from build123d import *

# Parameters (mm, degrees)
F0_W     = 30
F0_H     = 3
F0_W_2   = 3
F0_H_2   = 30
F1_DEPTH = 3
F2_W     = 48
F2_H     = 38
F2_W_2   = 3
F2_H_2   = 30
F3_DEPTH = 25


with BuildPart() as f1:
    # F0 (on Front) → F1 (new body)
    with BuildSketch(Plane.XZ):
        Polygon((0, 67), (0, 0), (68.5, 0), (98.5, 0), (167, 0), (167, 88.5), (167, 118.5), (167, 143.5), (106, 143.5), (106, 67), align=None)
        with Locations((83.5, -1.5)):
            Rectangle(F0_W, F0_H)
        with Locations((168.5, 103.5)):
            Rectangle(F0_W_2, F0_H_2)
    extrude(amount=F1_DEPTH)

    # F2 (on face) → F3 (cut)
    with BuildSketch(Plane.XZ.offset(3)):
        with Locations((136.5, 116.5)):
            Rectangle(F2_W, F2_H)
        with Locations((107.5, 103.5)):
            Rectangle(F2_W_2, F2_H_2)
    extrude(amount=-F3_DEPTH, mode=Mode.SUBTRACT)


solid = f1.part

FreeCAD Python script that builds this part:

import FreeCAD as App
import Part
import Sketcher
from FreeCAD import Vector

doc = App.newDocument("Part")
body = doc.addObject("PartDesign::Body", "Body")

# Sketch on XZ plane
sketch1 = body.newObject("Sketcher::SketchObject", "Sketch")
sketch1.AttachmentSupport = (doc.getObject("XZ_Plane"), [""])
sketch1.MapMode = "FlatFace"
sketch1.addGeometry(Part.LineSegment(Vector(0, 67, 0), Vector(0, 0, 0)), False)
sketch1.addGeometry(Part.LineSegment(Vector(0, 0, 0), Vector(68.5, 0, 0)), False)
sketch1.addGeometry(Part.LineSegment(Vector(68.5, 0, 0), Vector(68.5, -3, 0)), False)
sketch1.addGeometry(Part.LineSegment(Vector(68.5, -3, 0), Vector(98.5, -3, 0)), False)
sketch1.addGeometry(Part.LineSegment(Vector(98.5, -3, 0), Vector(98.5, 0, 0)), False)
sketch1.addGeometry(Part.LineSegment(Vector(98.5, 0, 0), Vector(167, 0, 0)), False)
sketch1.addGeometry(Part.LineSegment(Vector(167, 0, 0), Vector(167, 88.5, 0)), False)
sketch1.addGeometry(Part.LineSegment(Vector(167, 88.5, 0), Vector(170, 88.5, 0)), False)
sketch1.addGeometry(Part.LineSegment(Vector(170, 88.5, 0), Vector(170, 118.5, 0)), False)
sketch1.addGeometry(Part.LineSegment(Vector(170, 118.5, 0), Vector(167, 118.5, 0)), False)
sketch1.addGeometry(Part.LineSegment(Vector(167, 118.5, 0), Vector(167, 143.5, 0)), False)
sketch1.addGeometry(Part.LineSegment(Vector(167, 143.5, 0), Vector(106, 143.5, 0)), False)
sketch1.addGeometry(Part.LineSegment(Vector(106, 143.5, 0), Vector(106, 67, 0)), False)
sketch1.addGeometry(Part.LineSegment(Vector(106, 67, 0), Vector(0, 67, 0)), False)
sketch1.addConstraint(Sketcher.Constraint("Coincident", 0, 2, 1, 1))
sketch1.addConstraint(Sketcher.Constraint("Coincident", 1, 2, 2, 1))
sketch1.addConstraint(Sketcher.Constraint("Coincident", 2, 2, 3, 1))
sketch1.addConstraint(Sketcher.Constraint("Coincident", 3, 2, 4, 1))
sketch1.addConstraint(Sketcher.Constraint("Coincident", 4, 2, 5, 1))
sketch1.addConstraint(Sketcher.Constraint("Coincident", 5, 2, 6, 1))
sketch1.addConstraint(Sketcher.Constraint("Coincident", 6, 2, 7, 1))
sketch1.addConstraint(Sketcher.Constraint("Coincident", 7, 2, 8, 1))
sketch1.addConstraint(Sketcher.Constraint("Coincident", 8, 2, 9, 1))
sketch1.addConstraint(Sketcher.Constraint("Coincident", 9, 2, 10, 1))
sketch1.addConstraint(Sketcher.Constraint("Coincident", 10, 2, 11, 1))
sketch1.addConstraint(Sketcher.Constraint("Coincident", 11, 2, 12, 1))
sketch1.addConstraint(Sketcher.Constraint("Coincident", 12, 2, 13, 1))
sketch1.addConstraint(Sketcher.Constraint("Coincident", 13, 2, 0, 1))
sketch1.addConstraint(Sketcher.Constraint("Vertical", 0))
sketch1.addConstraint(Sketcher.Constraint("Horizontal", 1))
sketch1.addConstraint(Sketcher.Constraint("Vertical", 2))
sketch1.addConstraint(Sketcher.Constraint("Horizontal", 3))
sketch1.addConstraint(Sketcher.Constraint("Vertical", 4))
sketch1.addConstraint(Sketcher.Constraint("Horizontal", 5))
sketch1.addConstraint(Sketcher.Constraint("Vertical", 6))
sketch1.addConstraint(Sketcher.Constraint("Horizontal", 7))
sketch1.addConstraint(Sketcher.Constraint("Vertical", 8))
sketch1.addConstraint(Sketcher.Constraint("Horizontal", 9))
sketch1.addConstraint(Sketcher.Constraint("Vertical", 10))
sketch1.addConstraint(Sketcher.Constraint("Horizontal", 11))
sketch1.addConstraint(Sketcher.Constraint("Vertical", 12))
sketch1.addConstraint(Sketcher.Constraint("Horizontal", 13))
sketch1.addConstraint(Sketcher.Constraint("Coincident", 0, 2, -1, 1))
sketch1.addConstraint(Sketcher.Constraint("PointOnObject", 4, 2, -1))
sketch1.addConstraint(Sketcher.Constraint("Vertical", 6, 2, 9, 2))
sketch1.addConstraint(Sketcher.Constraint("Equal", 1, 5))
sketch1.addConstraint(Sketcher.Constraint("Equal", 9, 2))
sketch1.addConstraint(Sketcher.Constraint("Equal", 3, 8))
sketch1.addConstraint(Sketcher.Constraint("DistanceX", 3, 1, 3, 2, 30.0))
sketch1.addConstraint(Sketcher.Constraint("DistanceX", 7, 1, 7, 2, 3.0))
sketch1.addConstraint(Sketcher.Constraint("DistanceX", 11, 2, 11, 1, 61.0))
sketch1.addConstraint(Sketcher.Constraint("DistanceX", 13, 2, 13, 1, 106.0))
sketch1.addConstraint(Sketcher.Constraint("DistanceY", 0, 2, 0, 1, 67.0))
sketch1.addConstraint(Sketcher.Constraint("DistanceY", 10, 1, 10, 2, 25.0))
sketch1.addConstraint(Sketcher.Constraint("DistanceY", 6, 1, 6, 2, 88.5))
pad1 = body.newObject("PartDesign::Pad", "Pad")
pad1.Profile = sketch1
pad1.Length = 3

# Sketch on XZ plane
sketch2 = body.newObject("Sketcher::SketchObject", "Sketch001")
sketch2.AttachmentSupport = (doc.getObject("XZ_Plane"), [""])
sketch2.MapMode = "FlatFace"
sketch2.AttachmentOffset = App.Placement(Vector(0, 0, 3), App.Rotation())
sketch2.addGeometry(Part.LineSegment(Vector(112.5, 135.5, 0), Vector(112.5, 97.5, 0)), False)
sketch2.addGeometry(Part.LineSegment(Vector(112.5, 97.5, 0), Vector(160.5, 97.5, 0)), False)
sketch2.addGeometry(Part.LineSegment(Vector(160.5, 97.5, 0), Vector(160.5, 135.5, 0)), False)
sketch2.addGeometry(Part.LineSegment(Vector(160.5, 135.5, 0), Vector(112.5, 135.5, 0)), False)
sketch2.addGeometry(Part.LineSegment(Vector(106, 118.5, 0), Vector(106, 88.5, 0)), False)
sketch2.addGeometry(Part.LineSegment(Vector(106, 88.5, 0), Vector(109, 88.5, 0)), False)
sketch2.addGeometry(Part.LineSegment(Vector(109, 88.5, 0), Vector(109, 118.5, 0)), False)
sketch2.addGeometry(Part.LineSegment(Vector(109, 118.5, 0), Vector(106, 118.5, 0)), False)
sketch2.addConstraint(Sketcher.Constraint("Coincident", 0, 2, 1, 1))
sketch2.addConstraint(Sketcher.Constraint("Coincident", 1, 2, 2, 1))
sketch2.addConstraint(Sketcher.Constraint("Coincident", 2, 2, 3, 1))
sketch2.addConstraint(Sketcher.Constraint("Coincident", 3, 2, 0, 1))
sketch2.addConstraint(Sketcher.Constraint("Coincident", 4, 2, 5, 1))
sketch2.addConstraint(Sketcher.Constraint("Coincident", 5, 2, 6, 1))
sketch2.addConstraint(Sketcher.Constraint("Coincident", 6, 2, 7, 1))
sketch2.addConstraint(Sketcher.Constraint("Coincident", 7, 2, 4, 1))
sketch2.addConstraint(Sketcher.Constraint("Vertical", 0))
sketch2.addConstraint(Sketcher.Constraint("Horizontal", 1))
sketch2.addConstraint(Sketcher.Constraint("Vertical", 2))
sketch2.addConstraint(Sketcher.Constraint("Horizontal", 3))
sketch2.addConstraint(Sketcher.Constraint("Vertical", 4))
sketch2.addConstraint(Sketcher.Constraint("Horizontal", 5))
sketch2.addConstraint(Sketcher.Constraint("Vertical", 6))
sketch2.addConstraint(Sketcher.Constraint("Horizontal", 7))
sketch2.addConstraint(Sketcher.Constraint("DistanceX", 1, 1, 1, 2, 48.0))
sketch2.addConstraint(Sketcher.Constraint("DistanceX", 5, 1, 5, 2, 3.0))
sketch2.addConstraint(Sketcher.Constraint("DistanceY", 0, 2, 0, 1, 38.0))
sketch2.addConstraint(Sketcher.Constraint("DistanceY", 4, 2, 4, 1, 30.0))
sketch2.addConstraint(Sketcher.Constraint("DistanceX", -1, 1, 4, 2, 106.0))
sketch2.addConstraint(Sketcher.Constraint("DistanceY", 4, 2, 0, 2, 9.0))
sketch2.addConstraint(Sketcher.Constraint("DistanceX", -1, 1, 0, 2, 112.5))
sketch2.addConstraint(Sketcher.Constraint("DistanceY", -1, 1, 0, 2, 97.5))
pocket1 = body.newObject("PartDesign::Pocket", "Pocket")
pocket1.Profile = sketch2
pocket1.Length = 25

doc.recompute()
